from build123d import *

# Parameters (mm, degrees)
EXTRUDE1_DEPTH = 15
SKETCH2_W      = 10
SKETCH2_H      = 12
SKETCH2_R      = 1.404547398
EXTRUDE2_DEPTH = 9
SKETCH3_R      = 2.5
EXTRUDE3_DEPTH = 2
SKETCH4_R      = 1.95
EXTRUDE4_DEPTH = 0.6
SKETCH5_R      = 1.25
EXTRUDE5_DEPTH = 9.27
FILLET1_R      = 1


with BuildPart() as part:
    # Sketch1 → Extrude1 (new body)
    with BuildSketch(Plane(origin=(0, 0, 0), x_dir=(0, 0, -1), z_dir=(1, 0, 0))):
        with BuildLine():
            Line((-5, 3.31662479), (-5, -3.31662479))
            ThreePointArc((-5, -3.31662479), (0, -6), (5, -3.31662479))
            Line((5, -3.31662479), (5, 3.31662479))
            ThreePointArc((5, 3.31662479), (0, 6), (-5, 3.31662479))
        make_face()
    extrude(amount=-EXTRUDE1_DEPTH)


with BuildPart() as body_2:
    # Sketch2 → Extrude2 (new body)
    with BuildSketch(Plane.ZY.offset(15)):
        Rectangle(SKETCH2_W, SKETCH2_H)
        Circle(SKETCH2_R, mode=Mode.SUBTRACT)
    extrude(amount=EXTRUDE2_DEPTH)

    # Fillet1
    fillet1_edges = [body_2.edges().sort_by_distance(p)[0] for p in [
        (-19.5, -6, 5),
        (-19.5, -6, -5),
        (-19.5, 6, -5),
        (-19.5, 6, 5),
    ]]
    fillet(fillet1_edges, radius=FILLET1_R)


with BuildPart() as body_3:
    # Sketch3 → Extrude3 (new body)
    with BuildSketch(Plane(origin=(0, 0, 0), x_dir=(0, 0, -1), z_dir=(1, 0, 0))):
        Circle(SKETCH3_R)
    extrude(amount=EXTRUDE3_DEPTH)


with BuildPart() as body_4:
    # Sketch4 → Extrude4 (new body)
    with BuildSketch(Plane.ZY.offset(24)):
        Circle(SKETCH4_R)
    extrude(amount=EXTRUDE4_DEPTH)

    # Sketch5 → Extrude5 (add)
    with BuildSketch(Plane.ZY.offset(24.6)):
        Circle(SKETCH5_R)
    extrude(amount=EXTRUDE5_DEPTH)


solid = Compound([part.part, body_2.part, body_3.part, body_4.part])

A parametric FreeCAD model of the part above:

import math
import FreeCAD as App
import Part
import Sketcher

V = App.Vector


def edges_at(feature, points):
    """Names of the edges that pass closest to the given points."""
    edges = feature.Shape.Edges
    near = lambda p: min(range(len(edges)), key=lambda i: edges[i].distToShape(Part.Vertex(*p))[0])
    return sorted({f"Edge{near(p) + 1}" for p in points})


def add_polygon(sketch, points):
    """Adds a closed chain of lines whose ends are joined by coincident constraints."""
    first, n = sketch.GeometryCount, len(points)
    for a, b in zip(points, points[1:] + points[:1]):
        sketch.addGeometry(Part.LineSegment(App.Vector(*a, 0), App.Vector(*b, 0)), False)
    for i in range(n):
        sketch.addConstraint(Sketcher.Constraint("Coincident", first + i, 2, first + (i + 1) % n, 1))

doc = App.newDocument("Part")
body = doc.addObject("PartDesign::Body", "Body")

sketch1 = body.newObject("Sketcher::SketchObject", "Sketch")
sketch1.AttachmentSupport = (doc.getObject("YZ_Plane"), [""])
sketch1.MapMode = "FlatFace"
sketch1.addGeometry([
    Part.LineSegment(V(3.316625, 5, 0), V(-3.316625, 5, 0)),
    Part.ArcOfCircle(Part.Circle(V(0, 0, 0), V(0, 0, 1), 6), math.radians(123.55731), math.radians(236.44269)),
    Part.LineSegment(V(-3.316625, -5, 0), V(3.316625, -5, 0)),
    Part.ArcOfCircle(Part.Circle(V(0, 0, 0), V(0, 0, 1), 6), math.radians(-56.44269), math.radians(56.44269)),
], False)
sketch1.addConstraint([
    Sketcher.Constraint("Coincident", 0, 2, 1, 1),
    Sketcher.Constraint("Coincident", 1, 2, 2, 1),
    Sketcher.Constraint("Coincident", 2, 2, 3, 1),
    Sketcher.Constraint("Coincident", 3, 2, 0, 1),
    Sketcher.Constraint("Horizontal", 0),
    Sketcher.Constraint("Horizontal", 2),
    Sketcher.Constraint("Coincident", 1, 3, -1, 1),
    Sketcher.Constraint("Coincident", 3, 3, -1, 1),
    Sketcher.Constraint("Equal", 1, 3),
    Sketcher.Constraint("Vertical", 0, 2, 1, 2),
    Sketcher.Constraint("Radius", 1, 6.0),
    Sketcher.Constraint("DistanceY", -1, 1, 0, 2, 5.0),
])
pad1 = body.newObject("PartDesign::Pad", "Pad")
pad1.Profile = sketch1
pad1.Length = 15
pad1.Reversed = True
body2 = doc.addObject("PartDesign::Body", "Body001")

sketch2 = body2.newObject("Sketcher::SketchObject", "Sketch001")
sketch2.AttachmentSupport = (doc.getObject("YZ_Plane001"), [""])
sketch2.MapMode = "FlatFace"
sketch2.AttachmentOffset = App.Placement(V(0, 0, -15), App.Rotation())
add_polygon(sketch2, [(6, -5), (-6, -5), (-6, 5), (6, 5)])
sketch2.addGeometry(Part.Circle(V(0, 0, 0), V(0, 0, 1), 1.404547), False)
sketch2.addConstraint([
    Sketcher.Constraint("Horizontal", 0),
    Sketcher.Constraint("Vertical", 1),
    Sketcher.Constraint("Horizontal", 2),
    Sketcher.Constraint("Vertical", 3),
    Sketcher.Constraint("Coincident", 4, 3, -1, 1),
    Sketcher.Constraint("Symmetric", 0, 2, 2, 2, -1, 1),
    Sketcher.Constraint("DistanceX", 0, 2, 0, 1, 12.0),
    Sketcher.Constraint("DistanceY", 1, 1, 1, 2, 10.0),
    Sketcher.Constraint("Diameter", 4, 2.809095),
])
pad2 = body2.newObject("PartDesign::Pad", "Pad001")
pad2.Profile = sketch2
pad2.Length = 9
pad2.Reversed = True
doc.recompute()

fillet = body2.newObject("PartDesign::Fillet", "Fillet")
fillet.Base = (pad2, edges_at(pad2, [
    (-19.5, -6, 5),
    (-19.5, -6, -5),
    (-19.5, 6, -5),
    (-19.5, 6, 5),
]))
fillet.Radius = 1
body3 = doc.addObject("PartDesign::Body", "Body002")

sketch3 = body3.newObject("Sketcher::SketchObject", "Sketch002")
sketch3.AttachmentSupport = (doc.getObject("YZ_Plane002"), [""])
sketch3.MapMode = "FlatFace"
sketch3.addGeometry(Part.Circle(V(0, 0, 0), V(0, 0, 1), 2.5), False)
sketch3.addConstraint([
    Sketcher.Constraint("Coincident", 0, 3, -1, 1),
    Sketcher.Constraint("Diameter", 0, 5.0),
])
pad3 = body3.newObject("PartDesign::Pad", "Pad002")
pad3.Profile = sketch3
pad3.Length = 2
body4 = doc.addObject("PartDesign::Body", "Body003")

sketch4 = body4.newObject("Sketcher::SketchObject", "Sketch003")
sketch4.AttachmentSupport = (doc.getObject("YZ_Plane003"), [""])
sketch4.MapMode = "FlatFace"
sketch4.AttachmentOffset = App.Placement(V(0, 0, -24), App.Rotation())
sketch4.addGeometry(Part.Circle(V(0, 0, 0), V(0, 0, 1), 1.95), False)
sketch4.addConstraint([
    Sketcher.Constraint("Coincident", 0, 3, -1, 1),
    Sketcher.Constraint("Diameter", 0, 3.9),
])
pad4 = body4.newObject("PartDesign::Pad", "Pad003")
pad4.Profile = sketch4
pad4.Length = 0.6
pad4.Reversed = True

sketch5 = body4.newObject("Sketcher::SketchObject", "Sketch004")
sketch5.AttachmentSupport = (doc.getObject("YZ_Plane003"), [""])
sketch5.MapMode = "FlatFace"
sketch5.AttachmentOffset = App.Placement(V(0, 0, -24.6), App.Rotation())
sketch5.addGeometry(Part.Circle(V(0, 0, 0), V(0, 0, 1), 1.25), False)
sketch5.addConstraint([
    Sketcher.Constraint("Coincident", 0, 3, -1, 1),
    Sketcher.Constraint("Diameter", 0, 2.5),
])
pad5 = body4.newObject("PartDesign::Pad", "Pad004")
pad5.Profile = sketch5
pad5.Length = 9.27
pad5.Reversed = True

doc.recompute()
